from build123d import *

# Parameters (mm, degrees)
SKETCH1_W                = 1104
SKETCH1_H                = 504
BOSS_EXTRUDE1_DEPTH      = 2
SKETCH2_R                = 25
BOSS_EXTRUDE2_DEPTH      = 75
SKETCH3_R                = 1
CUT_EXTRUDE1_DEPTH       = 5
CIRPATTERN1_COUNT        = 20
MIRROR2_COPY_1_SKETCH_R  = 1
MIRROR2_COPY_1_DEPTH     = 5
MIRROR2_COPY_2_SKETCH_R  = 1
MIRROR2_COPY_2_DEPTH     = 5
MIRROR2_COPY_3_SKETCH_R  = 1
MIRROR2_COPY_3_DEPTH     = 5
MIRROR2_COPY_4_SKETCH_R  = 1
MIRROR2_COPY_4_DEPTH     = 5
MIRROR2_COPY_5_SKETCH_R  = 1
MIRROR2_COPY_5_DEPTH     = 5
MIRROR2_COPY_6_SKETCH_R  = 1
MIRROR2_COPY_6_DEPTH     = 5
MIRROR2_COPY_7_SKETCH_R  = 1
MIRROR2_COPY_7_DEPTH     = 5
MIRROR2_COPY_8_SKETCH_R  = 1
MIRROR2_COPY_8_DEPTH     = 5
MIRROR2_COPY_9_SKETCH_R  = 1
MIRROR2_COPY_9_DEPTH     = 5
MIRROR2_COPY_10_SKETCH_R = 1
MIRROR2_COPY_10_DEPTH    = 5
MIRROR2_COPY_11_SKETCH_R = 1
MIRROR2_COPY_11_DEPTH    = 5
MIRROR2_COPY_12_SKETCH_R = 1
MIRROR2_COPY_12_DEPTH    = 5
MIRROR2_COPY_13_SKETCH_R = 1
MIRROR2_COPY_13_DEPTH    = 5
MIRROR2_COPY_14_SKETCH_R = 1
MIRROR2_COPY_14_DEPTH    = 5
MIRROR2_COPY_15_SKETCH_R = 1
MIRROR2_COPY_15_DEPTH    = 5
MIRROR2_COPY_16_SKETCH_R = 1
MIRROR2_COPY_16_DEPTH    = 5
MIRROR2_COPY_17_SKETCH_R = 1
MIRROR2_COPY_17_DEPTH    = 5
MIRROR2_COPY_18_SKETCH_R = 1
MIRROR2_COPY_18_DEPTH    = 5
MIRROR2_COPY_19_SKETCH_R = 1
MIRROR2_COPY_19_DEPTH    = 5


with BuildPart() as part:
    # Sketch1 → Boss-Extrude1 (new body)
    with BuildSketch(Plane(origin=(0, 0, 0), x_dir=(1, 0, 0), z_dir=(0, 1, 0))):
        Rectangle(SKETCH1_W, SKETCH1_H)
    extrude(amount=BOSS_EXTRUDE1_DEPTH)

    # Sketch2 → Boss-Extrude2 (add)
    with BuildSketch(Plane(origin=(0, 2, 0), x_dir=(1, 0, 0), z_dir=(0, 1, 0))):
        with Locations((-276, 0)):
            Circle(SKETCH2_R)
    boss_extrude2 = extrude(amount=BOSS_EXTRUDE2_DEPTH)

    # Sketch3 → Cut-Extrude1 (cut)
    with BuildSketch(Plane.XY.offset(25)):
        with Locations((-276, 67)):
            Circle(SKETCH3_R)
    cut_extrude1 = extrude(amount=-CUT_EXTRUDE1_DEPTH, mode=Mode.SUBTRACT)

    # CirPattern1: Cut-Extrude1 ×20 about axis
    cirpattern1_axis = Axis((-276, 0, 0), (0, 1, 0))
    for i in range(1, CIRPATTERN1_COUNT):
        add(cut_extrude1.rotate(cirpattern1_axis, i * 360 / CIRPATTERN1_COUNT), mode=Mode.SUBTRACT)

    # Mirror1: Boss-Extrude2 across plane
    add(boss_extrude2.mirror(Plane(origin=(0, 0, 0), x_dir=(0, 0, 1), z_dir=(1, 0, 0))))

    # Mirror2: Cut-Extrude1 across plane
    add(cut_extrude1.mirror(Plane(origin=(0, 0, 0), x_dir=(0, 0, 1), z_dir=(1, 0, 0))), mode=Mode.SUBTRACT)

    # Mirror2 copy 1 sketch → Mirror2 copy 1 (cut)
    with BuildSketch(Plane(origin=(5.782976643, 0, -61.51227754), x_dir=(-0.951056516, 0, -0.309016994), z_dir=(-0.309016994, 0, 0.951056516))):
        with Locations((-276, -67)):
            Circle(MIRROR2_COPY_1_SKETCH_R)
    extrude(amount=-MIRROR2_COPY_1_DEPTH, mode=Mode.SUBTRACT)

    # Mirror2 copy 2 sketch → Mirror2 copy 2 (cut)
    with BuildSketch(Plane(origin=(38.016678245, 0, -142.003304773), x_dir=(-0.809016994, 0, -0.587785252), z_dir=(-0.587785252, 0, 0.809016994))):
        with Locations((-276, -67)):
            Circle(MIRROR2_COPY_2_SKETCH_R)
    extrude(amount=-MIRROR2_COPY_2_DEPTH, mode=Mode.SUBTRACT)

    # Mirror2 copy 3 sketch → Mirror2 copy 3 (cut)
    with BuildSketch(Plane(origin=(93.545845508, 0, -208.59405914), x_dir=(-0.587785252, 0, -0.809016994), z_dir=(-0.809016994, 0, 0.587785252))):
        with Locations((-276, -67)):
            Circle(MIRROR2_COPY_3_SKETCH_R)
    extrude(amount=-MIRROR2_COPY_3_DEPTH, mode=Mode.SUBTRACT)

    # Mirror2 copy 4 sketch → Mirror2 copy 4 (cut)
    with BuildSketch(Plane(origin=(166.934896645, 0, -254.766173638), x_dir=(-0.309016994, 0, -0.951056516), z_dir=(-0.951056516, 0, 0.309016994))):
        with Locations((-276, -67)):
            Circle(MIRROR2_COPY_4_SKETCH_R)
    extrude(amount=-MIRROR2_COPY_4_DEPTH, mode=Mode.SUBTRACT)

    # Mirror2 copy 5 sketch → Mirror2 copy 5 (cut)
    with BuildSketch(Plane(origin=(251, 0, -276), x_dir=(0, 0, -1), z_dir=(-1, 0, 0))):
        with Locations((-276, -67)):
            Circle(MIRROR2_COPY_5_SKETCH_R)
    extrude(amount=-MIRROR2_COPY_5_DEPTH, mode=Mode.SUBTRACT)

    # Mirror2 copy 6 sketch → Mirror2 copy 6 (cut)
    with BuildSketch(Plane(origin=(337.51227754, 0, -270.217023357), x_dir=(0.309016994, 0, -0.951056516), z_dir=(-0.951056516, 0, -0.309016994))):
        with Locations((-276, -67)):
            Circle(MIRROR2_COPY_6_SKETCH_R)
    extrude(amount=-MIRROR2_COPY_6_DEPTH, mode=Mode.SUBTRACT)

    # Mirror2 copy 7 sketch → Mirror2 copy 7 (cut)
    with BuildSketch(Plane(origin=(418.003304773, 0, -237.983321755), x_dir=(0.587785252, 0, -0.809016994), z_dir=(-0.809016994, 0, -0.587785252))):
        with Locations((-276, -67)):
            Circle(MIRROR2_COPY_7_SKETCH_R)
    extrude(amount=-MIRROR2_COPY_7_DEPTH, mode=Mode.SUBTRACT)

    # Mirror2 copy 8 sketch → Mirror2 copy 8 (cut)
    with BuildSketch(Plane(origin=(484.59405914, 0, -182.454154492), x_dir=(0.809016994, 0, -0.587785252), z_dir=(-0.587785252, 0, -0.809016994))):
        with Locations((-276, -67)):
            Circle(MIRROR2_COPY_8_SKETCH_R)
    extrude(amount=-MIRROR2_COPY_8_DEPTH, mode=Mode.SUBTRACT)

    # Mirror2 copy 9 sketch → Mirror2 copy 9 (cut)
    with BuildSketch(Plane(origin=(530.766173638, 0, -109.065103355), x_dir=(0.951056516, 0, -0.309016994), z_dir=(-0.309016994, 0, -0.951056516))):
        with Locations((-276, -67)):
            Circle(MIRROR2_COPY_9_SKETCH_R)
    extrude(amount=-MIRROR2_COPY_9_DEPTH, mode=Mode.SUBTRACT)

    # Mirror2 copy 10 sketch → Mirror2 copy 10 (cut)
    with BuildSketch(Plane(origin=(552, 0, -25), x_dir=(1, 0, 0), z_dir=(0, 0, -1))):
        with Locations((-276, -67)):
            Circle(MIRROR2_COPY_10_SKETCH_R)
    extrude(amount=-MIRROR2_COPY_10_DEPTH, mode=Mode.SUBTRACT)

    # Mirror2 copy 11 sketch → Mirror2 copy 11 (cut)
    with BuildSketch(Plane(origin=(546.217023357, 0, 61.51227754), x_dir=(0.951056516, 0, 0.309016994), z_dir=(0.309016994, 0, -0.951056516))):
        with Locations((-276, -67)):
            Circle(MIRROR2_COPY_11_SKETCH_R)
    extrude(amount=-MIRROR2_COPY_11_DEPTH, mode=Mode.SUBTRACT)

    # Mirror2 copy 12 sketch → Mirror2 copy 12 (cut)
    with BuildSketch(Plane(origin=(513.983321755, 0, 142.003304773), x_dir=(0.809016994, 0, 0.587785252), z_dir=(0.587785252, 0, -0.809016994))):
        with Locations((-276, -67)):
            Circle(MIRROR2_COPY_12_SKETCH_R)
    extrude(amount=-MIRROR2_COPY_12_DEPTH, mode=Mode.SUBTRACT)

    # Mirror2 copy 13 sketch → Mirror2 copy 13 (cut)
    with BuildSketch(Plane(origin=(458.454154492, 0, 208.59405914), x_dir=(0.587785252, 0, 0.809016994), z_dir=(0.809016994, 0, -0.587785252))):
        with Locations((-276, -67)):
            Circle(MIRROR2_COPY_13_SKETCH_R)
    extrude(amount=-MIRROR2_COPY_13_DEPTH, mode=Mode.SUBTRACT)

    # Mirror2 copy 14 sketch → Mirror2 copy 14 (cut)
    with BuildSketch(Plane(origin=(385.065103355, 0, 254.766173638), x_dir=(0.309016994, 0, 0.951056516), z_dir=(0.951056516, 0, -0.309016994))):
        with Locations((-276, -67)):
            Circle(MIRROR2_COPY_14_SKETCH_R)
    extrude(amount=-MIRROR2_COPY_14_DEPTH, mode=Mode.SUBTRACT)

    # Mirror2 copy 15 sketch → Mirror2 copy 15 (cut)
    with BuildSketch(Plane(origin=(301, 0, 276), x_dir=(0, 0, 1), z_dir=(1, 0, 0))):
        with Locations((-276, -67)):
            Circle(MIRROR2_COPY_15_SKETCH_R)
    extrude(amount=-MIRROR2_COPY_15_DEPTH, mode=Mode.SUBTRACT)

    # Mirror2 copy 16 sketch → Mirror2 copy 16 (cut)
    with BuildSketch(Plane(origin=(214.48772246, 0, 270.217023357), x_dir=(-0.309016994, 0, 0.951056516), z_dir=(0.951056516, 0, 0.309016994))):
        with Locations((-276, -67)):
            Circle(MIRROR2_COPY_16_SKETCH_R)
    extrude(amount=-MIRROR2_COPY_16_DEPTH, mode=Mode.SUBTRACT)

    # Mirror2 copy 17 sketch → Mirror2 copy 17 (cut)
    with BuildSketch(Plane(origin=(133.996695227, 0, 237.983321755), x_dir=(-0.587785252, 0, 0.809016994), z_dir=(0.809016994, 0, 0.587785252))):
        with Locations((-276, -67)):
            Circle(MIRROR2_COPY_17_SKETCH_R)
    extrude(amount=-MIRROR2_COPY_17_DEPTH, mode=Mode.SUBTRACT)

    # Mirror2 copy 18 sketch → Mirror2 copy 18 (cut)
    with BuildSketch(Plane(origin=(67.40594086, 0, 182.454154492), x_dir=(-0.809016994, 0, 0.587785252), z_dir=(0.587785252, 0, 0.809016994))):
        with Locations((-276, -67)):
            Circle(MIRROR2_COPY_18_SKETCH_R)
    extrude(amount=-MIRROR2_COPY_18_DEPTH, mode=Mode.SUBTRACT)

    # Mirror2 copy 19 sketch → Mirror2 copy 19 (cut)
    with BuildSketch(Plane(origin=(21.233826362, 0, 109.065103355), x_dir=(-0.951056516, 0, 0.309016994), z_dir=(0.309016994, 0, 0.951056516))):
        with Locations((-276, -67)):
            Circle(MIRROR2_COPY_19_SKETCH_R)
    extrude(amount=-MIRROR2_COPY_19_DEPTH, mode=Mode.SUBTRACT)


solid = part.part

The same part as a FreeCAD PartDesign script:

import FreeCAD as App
import Part
import Sketcher

V = App.Vector

doc = App.newDocument("Part")
body = doc.addObject("PartDesign::Body", "Body")

sketch1 = body.newObject("Sketcher::SketchObject", "Sketch")
sketch1.AttachmentSupport = (doc.getObject("XZ_Plane"), [""])
sketch1.MapMode = "FlatFace"
sketch1.addGeometry(Part.LineSegment(V(-552, -252, 0), V(-552, 252, 0)), False)
sketch1.addGeometry(Part.LineSegment(V(-552, 252, 0), V(552, 252, 0)), False)
sketch1.addGeometry(Part.LineSegment(V(552, 252, 0), V(552, -252, 0)), False)
sketch1.addGeometry(Part.LineSegment(V(552, -252, 0), V(-552, -252, 0)), False)
sketch1.addConstraint(Sketcher.Constraint("Coincident", 0, 2, 1, 1))
sketch1.addConstraint(Sketcher.Constraint("Coincident", 1, 2, 2, 1))
sketch1.addConstraint(Sketcher.Constraint("Coincident", 2, 2, 3, 1))
sketch1.addConstraint(Sketcher.Constraint("Coincident", 3, 2, 0, 1))
sketch1.addConstraint(Sketcher.Constraint("Vertical", 0))
sketch1.addConstraint(Sketcher.Constraint("Horizontal", 1))
sketch1.addConstraint(Sketcher.Constraint("Vertical", 2))
sketch1.addConstraint(Sketcher.Constraint("Horizontal", 3))
sketch1.addConstraint(Sketcher.Constraint("Symmetric", 0, 2, 2, 2, -1, 1))
sketch1.addConstraint(Sketcher.Constraint("DistanceX", 1, 1, 1, 2, 1104.0))
sketch1.addConstraint(Sketcher.Constraint("DistanceY", 0, 1, 0, 2, 504.0))
pad1 = body.newObject("PartDesign::Pad", "Pad")
pad1.Profile = sketch1
pad1.Length = 2
pad1.Reversed = True

sketch2 = body.newObject("Sketcher::SketchObject", "Sketch001")
sketch2.AttachmentSupport = (doc.getObject("XZ_Plane"), [""])
sketch2.MapMode = "FlatFace"
sketch2.AttachmentOffset = App.Placement(V(0, 0, -2), App.Rotation())
sketch2.addGeometry(Part.Circle(V(-276, 0, 0), V(0, 0, 1), 25), False)
sketch2.addConstraint(Sketcher.Constraint("PointOnObject", 0, 3, -1))
sketch2.addConstraint(Sketcher.Constraint("Diameter", 0, 50.0))
sketch2.addConstraint(Sketcher.Constraint("DistanceX", 0, 3, -1, 1, 276.0))
pad2 = body.newObject("PartDesign::Pad", "Pad001")
pad2.Profile = sketch2
pad2.Length = 75
pad2.Reversed = True

sketch3 = body.newObject("Sketcher::SketchObject", "Sketch002")
sketch3.AttachmentSupport = (doc.getObject("XY_Plane"), [""])
sketch3.MapMode = "FlatFace"
sketch3.AttachmentOffset = App.Placement(V(0, 0, 25), App.Rotation())
sketch3.addGeometry(Part.Circle(V(-276, 67, 0), V(0, 0, 1), 1), False)
sketch3.addConstraint(Sketcher.Constraint("Diameter", 0, 2.0))
sketch3.addConstraint(Sketcher.Constraint("DistanceX", 0, 3, -1, 1, 276.0))
sketch3.addConstraint(Sketcher.Constraint("DistanceY", -1, 1, 0, 3, 67.0))
pocket1 = body.newObject("PartDesign::Pocket", "Pocket")
pocket1.Profile = sketch3
pocket1.Length = 5
doc.recompute()

datumline = body.newObject("PartDesign::Line", "DatumLine")
datumline.Placement = App.Placement(V(-276, 0, 0), App.Rotation(V(0, 0, 1), V(0, 1, 0)))
polarpattern = body.newObject("PartDesign::PolarPattern", "PolarPattern")
polarpattern.Originals = [pocket1]
polarpattern.Axis = (datumline, [""])
polarpattern.Angle = 360
polarpattern.Occurrences = 20
body.Tip = polarpattern
doc.recompute()

mirrored = body.newObject("PartDesign::Mirrored", "Mirrored")
mirrored.Originals = [pad2]
mirrored.MirrorPlane = (doc.getObject("YZ_Plane"), [""])
body.Tip = mirrored
doc.recompute()

mirrored2 = body.newObject("PartDesign::Mirrored", "Mirrored001")
mirrored2.Originals = [pocket1]
mirrored2.MirrorPlane = (doc.getObject("YZ_Plane"), [""])
body.Tip = mirrored2

sketch4 = body.newObject("Sketcher::SketchObject", "Sketch003")
sketch4.Placement = App.Placement(V(5.782977, 0, -61.512278), App.Rotation(V(-0.951056516, 0, -0.309016994), V(0, -0.999999999, 0), V(-0.309016994, 0, 0.951056516), "ZXY"))
sketch4.addGeometry(Part.Circle(V(-276, -67, 0), V(0, 0, 1), 1), False)
sketch4.addConstraint(Sketcher.Constraint("Diameter", 0, 2.0))
sketch4.addConstraint(Sketcher.Constraint("DistanceX", 0, 3, -1, 1, 276.0))
sketch4.addConstraint(Sketcher.Constraint("DistanceY", 0, 3, -1, 1, 67.0))
pocket2 = body.newObject("PartDesign::Pocket", "Pocket001")
pocket2.Profile = sketch4
pocket2.Length = 5

sketch5 = body.newObject("Sketcher::SketchObject", "Sketch004")
sketch5.Placement = App.Placement(V(38.016678, 0, -142.003305), App.Rotation(V(-0.809016994, 0, -0.587785252), V(0, -0.999999999, 0), V(-0.587785252, 0, 0.809016994), "ZXY"))
sketch5.addGeometry(Part.Circle(V(-276, -67, 0), V(0, 0, 1), 1), False)
sketch5.addConstraint(Sketcher.Constraint("Diameter", 0, 2.0))
sketch5.addConstraint(Sketcher.Constraint("DistanceX", 0, 3, -1, 1, 276.0))
sketch5.addConstraint(Sketcher.Constraint("DistanceY", 0, 3, -1, 1, 67.0))
pocket3 = body.newObject("PartDesign::Pocket", "Pocket002")
pocket3.Profile = sketch5
pocket3.Length = 5

sketch6 = body.newObject("Sketcher::SketchObject", "Sketch005")
sketch6.Placement = App.Placement(V(93.545846, 0, -208.594059), App.Rotation(V(-0.587785252, 0, -0.809016994), V(0, -0.999999999, 0), V(-0.809016994, 0, 0.587785252), "ZXY"))
sketch6.addGeometry(Part.Circle(V(-276, -67, 0), V(0, 0, 1), 1), False)
sketch6.addConstraint(Sketcher.Constraint("Diameter", 0, 2.0))
sketch6.addConstraint(Sketcher.Constraint("DistanceX", 0, 3, -1, 1, 276.0))
sketch6.addConstraint(Sketcher.Constraint("DistanceY", 0, 3, -1, 1, 67.0))
pocket4 = body.newObject("PartDesign::Pocket", "Pocket003")
pocket4.Profile = sketch6
pocket4.Length = 5

sketch7 = body.newObject("Sketcher::SketchObject", "Sketch006")
sketch7.Placement = App.Placement(V(166.934897, 0, -254.766174), App.Rotation(V(-0.309016994, 0, -0.951056516), V(0, -0.999999999, 0), V(-0.951056516, 0, 0.309016994), "ZXY"))
sketch7.addGeometry(Part.Circle(V(-276, -67, 0), V(0, 0, 1), 1), False)
sketch7.addConstraint(Sketcher.Constraint("Diameter", 0, 2.0))
sketch7.addConstraint(Sketcher.Constraint("DistanceX", 0, 3, -1, 1, 276.0))
sketch7.addConstraint(Sketcher.Constraint("DistanceY", 0, 3, -1, 1, 67.0))
pocket5 = body.newObject("PartDesign::Pocket", "Pocket004")
pocket5.Profile = sketch7
pocket5.Length = 5

sketch8 = body.newObject("Sketcher::SketchObject", "Sketch007")
sketch8.AttachmentSupport = (doc.getObject("YZ_Plane"), [""])
sketch8.MapMode = "FlatFace"
sketch8.AttachmentOffset = App.Placement(V(0, 0, 251), App.Rotation())
sketch8.addGeometry(Part.Circle(V(67, 0, 0), V(0, 0, 1), 1), False)
sketch8.addConstraint(Sketcher.Constraint("PointOnObject", 0, 3, -1))
sketch8.addConstraint(Sketcher.Constraint("Diameter", 0, 2.0))
sketch8.addConstraint(Sketcher.Constraint("DistanceX", -1, 1, 0, 3, 67.0))
pocket6 = body.newObject("PartDesign::Pocket", "Pocket005")
pocket6.Profile = sketch8
pocket6.Length = 5
pocket6.Reversed = True

sketch9 = body.newObject("Sketcher::SketchObject", "Sketch008")
sketch9.Placement = App.Placement(V(337.512278, 0, -270.217023), App.Rotation(V(0.309016994, 0, -0.951056516), V(0, -0.999999999, 0), V(-0.951056516, 0, -0.309016994), "ZXY"))
sketch9.addGeometry(Part.Circle(V(-276, -67, 0), V(0, 0, 1), 1), False)
sketch9.addConstraint(Sketcher.Constraint("Diameter", 0, 2.0))
sketch9.addConstraint(Sketcher.Constraint("DistanceX", 0, 3, -1, 1, 276.0))
sketch9.addConstraint(Sketcher.Constraint("DistanceY", 0, 3, -1, 1, 67.0))
pocket7 = body.newObject("PartDesign::Pocket", "Pocket006")
pocket7.Profile = sketch9
pocket7.Length = 5

sketch10 = body.newObject("Sketcher::SketchObject", "Sketch009")
sketch10.Placement = App.Placement(V(418.003305, 0, -237.983322), App.Rotation(V(0.587785252, 0, -0.809016994), V(0, -0.999999999, 0), V(-0.809016994, 0, -0.587785252), "ZXY"))
sketch10.addGeometry(Part.Circle(V(-276, -67, 0), V(0, 0, 1), 1), False)
sketch10.addConstraint(Sketcher.Constraint("Diameter", 0, 2.0))
sketch10.addConstraint(Sketcher.Constraint("DistanceX", 0, 3, -1, 1, 276.0))
sketch10.addConstraint(Sketcher.Constraint("DistanceY", 0, 3, -1, 1, 67.0))
pocket8 = body.newObject("PartDesign::Pocket", "Pocket007")
pocket8.Profile = sketch10
pocket8.Length = 5

sketch11 = body.newObject("Sketcher::SketchObject", "Sketch010")
sketch11.Placement = App.Placement(V(484.594059, 0, -182.454154), App.Rotation(V(0.809016994, 0, -0.587785252), V(0, -0.999999999, 0), V(-0.587785252, 0, -0.809016994), "ZXY"))
sketch11.addGeometry(Part.Circle(V(-276, -67, 0), V(0, 0, 1), 1), False)
sketch11.addConstraint(Sketcher.Constraint("Diameter", 0, 2.0))
sketch11.addConstraint(Sketcher.Constraint("DistanceX", 0, 3, -1, 1, 276.0))
sketch11.addConstraint(Sketcher.Constraint("DistanceY", 0, 3, -1, 1, 67.0))
pocket9 = body.newObject("PartDesign::Pocket", "Pocket008")
pocket9.Profile = sketch11
pocket9.Length = 5

sketch12 = body.newObject("Sketcher::SketchObject", "Sketch011")
sketch12.Placement = App.Placement(V(530.766174, 0, -109.065103), App.Rotation(V(0.951056516, 0, -0.309016994), V(0, -0.999999999, 0), V(-0.309016994, 0, -0.951056516), "ZXY"))
sketch12.addGeometry(Part.Circle(V(-276, -67, 0), V(0, 0, 1), 1), False)
sketch12.addConstraint(Sketcher.Constraint("Diameter", 0, 2.0))
sketch12.addConstraint(Sketcher.Constraint("DistanceX", 0, 3, -1, 1, 276.0))
sketch12.addConstraint(Sketcher.Constraint("DistanceY", 0, 3, -1, 1, 67.0))
pocket10 = body.newObject("PartDesign::Pocket", "Pocket009")
pocket10.Profile = sketch12
pocket10.Length = 5

sketch13 = body.newObject("Sketcher::SketchObject", "Sketch012")
sketch13.AttachmentSupport = (doc.getObject("XY_Plane"), [""])
sketch13.MapMode = "FlatFace"
sketch13.AttachmentOffset = App.Placement(V(0, 0, -25), App.Rotation())
sketch13.addGeometry(Part.Circle(V(276, 67, 0), V(0, 0, 1), 1), False)
sketch13.addConstraint(Sketcher.Constraint("Diameter", 0, 2.0))
sketch13.addConstraint(Sketcher.Constraint("DistanceX", -1, 1, 0, 3, 276.0))
sketch13.addConstraint(Sketcher.Constraint("DistanceY", -1, 1, 0, 3, 67.0))
pocket11 = body.newObject("PartDesign::Pocket", "Pocket010")
pocket11.Profile = sketch13
pocket11.Length = 5
pocket11.Reversed = True

sketch14 = body.newObject("Sketcher::SketchObject", "Sketch013")
sketch14.Placement = App.Placement(V(546.217023, 0, 61.512278), App.Rotation(V(0.951056516, 0, 0.309016994), V(0, -0.999999999, 0), V(0.309016994, 0, -0.951056516), "ZXY"))
sketch14.addGeometry(Part.Circle(V(-276, -67, 0), V(0, 0, 1), 1), False)
sketch14.addConstraint(Sketcher.Constraint("Diameter", 0, 2.0))
sketch14.addConstraint(Sketcher.Constraint("DistanceX", 0, 3, -1, 1, 276.0))
sketch14.addConstraint(Sketcher.Constraint("DistanceY", 0, 3, -1, 1, 67.0))
pocket12 = body.newObject("PartDesign::Pocket", "Pocket011")
pocket12.Profile = sketch14
pocket12.Length = 5

sketch15 = body.newObject("Sketcher::SketchObject", "Sketch014")
sketch15.Placement = App.Placement(V(513.983322, 0, 142.003305), App.Rotation(V(0.809016994, 0, 0.587785252), V(0, -0.999999999, 0), V(0.587785252, 0, -0.809016994), "ZXY"))
sketch15.addGeometry(Part.Circle(V(-276, -67, 0), V(0, 0, 1), 1), False)
sketch15.addConstraint(Sketcher.Constraint("Diameter", 0, 2.0))
sketch15.addConstraint(Sketcher.Constraint("DistanceX", 0, 3, -1, 1, 276.0))
sketch15.addConstraint(Sketcher.Constraint("DistanceY", 0, 3, -1, 1, 67.0))
pocket13 = body.newObject("PartDesign::Pocket", "Pocket012")
pocket13.Profile = sketch15
pocket13.Length = 5

sketch16 = body.newObject("Sketcher::SketchObject", "Sketch015")
sketch16.Placement = App.Placement(V(458.454154, 0, 208.594059), App.Rotation(V(0.587785252, 0, 0.809016994), V(0, -0.999999999, 0), V(0.809016994, 0, -0.587785252), "ZXY"))
sketch16.addGeometry(Part.Circle(V(-276, -67, 0), V(0, 0, 1), 1), False)
sketch16.addConstraint(Sketcher.Constraint("Diameter", 0, 2.0))
sketch16.addConstraint(Sketcher.Constraint("DistanceX", 0, 3, -1, 1, 276.0))
sketch16.addConstraint(Sketcher.Constraint("DistanceY", 0, 3, -1, 1, 67.0))
pocket14 = body.newObject("PartDesign::Pocket", "Pocket013")
pocket14.Profile = sketch16
pocket14.Length = 5

sketch17 = body.newObject("Sketcher::SketchObject", "Sketch016")
sketch17.Placement = App.Placement(V(385.065103, 0, 254.766174), App.Rotation(V(0.309016994, 0, 0.951056516), V(0, -0.999999999, 0), V(0.951056516, 0, -0.309016994), "ZXY"))
sketch17.addGeometry(Part.Circle(V(-276, -67, 0), V(0, 0, 1), 1), False)
sketch17.addConstraint(Sketcher.Constraint("Diameter", 0, 2.0))
sketch17.addConstraint(Sketcher.Constraint("DistanceX", 0, 3, -1, 1, 276.0))
sketch17.addConstraint(Sketcher.Constraint("DistanceY", 0, 3, -1, 1, 67.0))
pocket15 = body.newObject("PartDesign::Pocket", "Pocket014")
pocket15.Profile = sketch17
pocket15.Length = 5

sketch18 = body.newObject("Sketcher::SketchObject", "Sketch017")
sketch18.AttachmentSupport = (doc.getObject("YZ_Plane"), [""])
sketch18.MapMode = "FlatFace"
sketch18.AttachmentOffset = App.Placement(V(0, 0, 301), App.Rotation())
sketch18.addGeometry(Part.Circle(V(67, 0, 0), V(0, 0, 1), 1), False)
sketch18.addConstraint(Sketcher.Constraint("PointOnObject", 0, 3, -1))
sketch18.addConstraint(Sketcher.Constraint("Diameter", 0, 2.0))
sketch18.addConstraint(Sketcher.Constraint("DistanceX", -1, 1, 0, 3, 67.0))
pocket16 = body.newObject("PartDesign::Pocket", "Pocket015")
pocket16.Profile = sketch18
pocket16.Length = 5

sketch19 = body.newObject("Sketcher::SketchObject", "Sketch018")
sketch19.Placement = App.Placement(V(214.487722, 0, 270.217023), App.Rotation(V(-0.309016994, 0, 0.951056516), V(0, -0.999999999, 0), V(0.951056516, 0, 0.309016994), "ZXY"))
sketch19.addGeometry(Part.Circle(V(-276, -67, 0), V(0, 0, 1), 1), False)
sketch19.addConstraint(Sketcher.Constraint("Diameter", 0, 2.0))
sketch19.addConstraint(Sketcher.Constraint("DistanceX", 0, 3, -1, 1, 276.0))
sketch19.addConstraint(Sketcher.Constraint("DistanceY", 0, 3, -1, 1, 67.0))
pocket17 = body.newObject("PartDesign::Pocket", "Pocket016")
pocket17.Profile = sketch19
pocket17.Length = 5

sketch20 = body.newObject("Sketcher::SketchObject", "Sketch019")
sketch20.Placement = App.Placement(V(133.996695, 0, 237.983322), App.Rotation(V(-0.587785252, 0, 0.809016994), V(0, -0.999999999, 0), V(0.809016994, 0, 0.587785252), "ZXY"))
sketch20.addGeometry(Part.Circle(V(-276, -67, 0), V(0, 0, 1), 1), False)
sketch20.addConstraint(Sketcher.Constraint("Diameter", 0, 2.0))
sketch20.addConstraint(Sketcher.Constraint("DistanceX", 0, 3, -1, 1, 276.0))
sketch20.addConstraint(Sketcher.Constraint("DistanceY", 0, 3, -1, 1, 67.0))
pocket18 = body.newObject("PartDesign::Pocket", "Pocket017")
pocket18.Profile = sketch20
pocket18.Length = 5

sketch21 = body.newObject("Sketcher::SketchObject", "Sketch020")
sketch21.Placement = App.Placement(V(67.405941, 0, 182.454154), App.Rotation(V(-0.809016994, 0, 0.587785252), V(0, -0.999999999, 0), V(0.587785252, 0, 0.809016994), "ZXY"))
sketch21.addGeometry(Part.Circle(V(-276, -67, 0), V(0, 0, 1), 1), False)
sketch21.addConstraint(Sketcher.Constraint("Diameter", 0, 2.0))
sketch21.addConstraint(Sketcher.Constraint("DistanceX", 0, 3, -1, 1, 276.0))
sketch21.addConstraint(Sketcher.Constraint("DistanceY", 0, 3, -1, 1, 67.0))
pocket19 = body.newObject("PartDesign::Pocket", "Pocket018")
pocket19.Profile = sketch21
pocket19.Length = 5

sketch22 = body.newObject("Sketcher::SketchObject", "Sketch021")
sketch22.Placement = App.Placement(V(21.233826, 0, 109.065103), App.Rotation(V(-0.951056516, 0, 0.309016994), V(0, -0.999999999, 0), V(0.309016994, 0, 0.951056516), "ZXY"))
sketch22.addGeometry(Part.Circle(V(-276, -67, 0), V(0, 0, 1), 1), False)
sketch22.addConstraint(Sketcher.Constraint("Diameter", 0, 2.0))
sketch22.addConstraint(Sketcher.Constraint("DistanceX", 0, 3, -1, 1, 276.0))
sketch22.addConstraint(Sketcher.Constraint("DistanceY", 0, 3, -1, 1, 67.0))
pocket20 = body.newObject("PartDesign::Pocket", "Pocket019")
pocket20.Profile = sketch22
pocket20.Length = 5

doc.recompute()
